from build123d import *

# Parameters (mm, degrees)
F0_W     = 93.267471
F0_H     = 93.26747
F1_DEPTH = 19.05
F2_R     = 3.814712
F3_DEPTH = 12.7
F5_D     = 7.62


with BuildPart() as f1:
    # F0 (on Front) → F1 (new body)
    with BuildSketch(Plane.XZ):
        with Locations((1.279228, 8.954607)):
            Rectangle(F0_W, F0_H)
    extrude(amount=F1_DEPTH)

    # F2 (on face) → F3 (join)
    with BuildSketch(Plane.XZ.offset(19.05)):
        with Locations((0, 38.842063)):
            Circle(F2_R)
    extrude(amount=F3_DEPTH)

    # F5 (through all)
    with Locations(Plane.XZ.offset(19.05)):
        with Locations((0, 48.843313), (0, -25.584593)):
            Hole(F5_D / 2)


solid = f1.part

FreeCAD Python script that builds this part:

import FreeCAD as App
import Part
import Sketcher

V = App.Vector
Q = App.Units.Quantity

doc = App.newDocument("Part")
body = doc.addObject("PartDesign::Body", "Body")

sketch1 = body.newObject("Sketcher::SketchObject", "Sketch")
sketch1.AttachmentSupport = (doc.getObject("XZ_Plane"), [""])
sketch1.MapMode = "FlatFace"
sketch1.addGeometry(Part.LineSegment(V(-45, 56, 0), V(-45, -38, 0)), False)
sketch1.addGeometry(Part.LineSegment(V(-45, -38, 0), V(48, -38, 0)), False)
sketch1.addGeometry(Part.LineSegment(V(48, -38, 0), V(48, 56, 0)), False)
sketch1.addGeometry(Part.LineSegment(V(48, 56, 0), V(-45, 56, 0)), False)
sketch1.addConstraint(Sketcher.Constraint("Coincident", 0, 2, 1, 1))
sketch1.addConstraint(Sketcher.Constraint("Coincident", 1, 2, 2, 1))
sketch1.addConstraint(Sketcher.Constraint("Coincident", 2, 2, 3, 1))
sketch1.addConstraint(Sketcher.Constraint("Coincident", 3, 2, 0, 1))
sketch1.addConstraint(Sketcher.Constraint("Vertical", 0))
sketch1.addConstraint(Sketcher.Constraint("Horizontal", 1))
sketch1.addConstraint(Sketcher.Constraint("Vertical", 2))
sketch1.addConstraint(Sketcher.Constraint("Horizontal", 3))
sketch1.addConstraint(Sketcher.Constraint("Equal", 3, 0))
sketch1.addConstraint(Sketcher.Constraint("DistanceX", 1, 1, 1, 2, 93.267471))
sketch1.addConstraint(Sketcher.Constraint("DistanceY", -1, 1, 2, 2, 55.588342))
sketch1.addConstraint(Sketcher.Constraint("DistanceX", 0, 2, -1, 1, 45.354507))
pad1 = body.newObject("PartDesign::Pad", "Pad")
pad1.Profile = sketch1
pad1.Length = Q("0.75 in")

sketch2 = body.newObject("Sketcher::SketchObject", "Sketch001")
sketch2.AttachmentSupport = (doc.getObject("XZ_Plane"), [""])
sketch2.MapMode = "FlatFace"
sketch2.AttachmentOffset = App.Placement(V(0, 0, 0.75 * 25.4), App.Rotation())
sketch2.addGeometry(Part.Circle(V(0, 38.8, 0), V(0, 0, 1), 3.8), False)
sketch2.addConstraint(Sketcher.Constraint("PointOnObject", 0, 3, -2))
sketch2.addConstraint(Sketcher.Constraint("Diameter", 0, 7.629424))
sketch2.addConstraint(Sketcher.Constraint("DistanceY", -1, 1, 0, 3, 38.842063))
pad2 = body.newObject("PartDesign::Pad", "Pad001")
pad2.Profile = sketch2
pad2.Length = Q("0.5 in")

sketch3 = body.newObject("Sketcher::SketchObject", "Sketch002")
sketch3.AttachmentSupport = (doc.getObject("XZ_Plane"), [""])
sketch3.MapMode = "FlatFace"
sketch3.AttachmentOffset = App.Placement(V(0, 0, 0.75 * 25.4), App.Rotation())
sketch3.addGeometry(Part.Circle(V(0, 48.8, 0), V(0, 0, 1), 3.8), False)
sketch3.addGeometry(Part.Circle(V(0, -25.6, 0), V(0, 0, 1), 3.8), False)
sketch3.addConstraint(Sketcher.Constraint("Equal", 0, 1))
sketch3.addConstraint(Sketcher.Constraint("PointOnObject", 0, 3, -2))
sketch3.addConstraint(Sketcher.Constraint("PointOnObject", 1, 3, -2))
sketch3.addConstraint(Sketcher.Constraint("Diameter", 0, Q("0.3 in")))
sketch3.addConstraint(Sketcher.Constraint("DistanceY", -1, 1, 0, 3, 48.843313))
sketch3.addConstraint(Sketcher.Constraint("DistanceY", 1, 3, -1, 1, 25.584593))
doc.recompute()
hole = body.newObject("PartDesign::Hole", "Hole")
hole.Profile = sketch3
hole.ThreadType = "None"
hole.Diameter = Q("0.3 in")
hole.DepthType = "ThroughAll"

doc.recompute()
